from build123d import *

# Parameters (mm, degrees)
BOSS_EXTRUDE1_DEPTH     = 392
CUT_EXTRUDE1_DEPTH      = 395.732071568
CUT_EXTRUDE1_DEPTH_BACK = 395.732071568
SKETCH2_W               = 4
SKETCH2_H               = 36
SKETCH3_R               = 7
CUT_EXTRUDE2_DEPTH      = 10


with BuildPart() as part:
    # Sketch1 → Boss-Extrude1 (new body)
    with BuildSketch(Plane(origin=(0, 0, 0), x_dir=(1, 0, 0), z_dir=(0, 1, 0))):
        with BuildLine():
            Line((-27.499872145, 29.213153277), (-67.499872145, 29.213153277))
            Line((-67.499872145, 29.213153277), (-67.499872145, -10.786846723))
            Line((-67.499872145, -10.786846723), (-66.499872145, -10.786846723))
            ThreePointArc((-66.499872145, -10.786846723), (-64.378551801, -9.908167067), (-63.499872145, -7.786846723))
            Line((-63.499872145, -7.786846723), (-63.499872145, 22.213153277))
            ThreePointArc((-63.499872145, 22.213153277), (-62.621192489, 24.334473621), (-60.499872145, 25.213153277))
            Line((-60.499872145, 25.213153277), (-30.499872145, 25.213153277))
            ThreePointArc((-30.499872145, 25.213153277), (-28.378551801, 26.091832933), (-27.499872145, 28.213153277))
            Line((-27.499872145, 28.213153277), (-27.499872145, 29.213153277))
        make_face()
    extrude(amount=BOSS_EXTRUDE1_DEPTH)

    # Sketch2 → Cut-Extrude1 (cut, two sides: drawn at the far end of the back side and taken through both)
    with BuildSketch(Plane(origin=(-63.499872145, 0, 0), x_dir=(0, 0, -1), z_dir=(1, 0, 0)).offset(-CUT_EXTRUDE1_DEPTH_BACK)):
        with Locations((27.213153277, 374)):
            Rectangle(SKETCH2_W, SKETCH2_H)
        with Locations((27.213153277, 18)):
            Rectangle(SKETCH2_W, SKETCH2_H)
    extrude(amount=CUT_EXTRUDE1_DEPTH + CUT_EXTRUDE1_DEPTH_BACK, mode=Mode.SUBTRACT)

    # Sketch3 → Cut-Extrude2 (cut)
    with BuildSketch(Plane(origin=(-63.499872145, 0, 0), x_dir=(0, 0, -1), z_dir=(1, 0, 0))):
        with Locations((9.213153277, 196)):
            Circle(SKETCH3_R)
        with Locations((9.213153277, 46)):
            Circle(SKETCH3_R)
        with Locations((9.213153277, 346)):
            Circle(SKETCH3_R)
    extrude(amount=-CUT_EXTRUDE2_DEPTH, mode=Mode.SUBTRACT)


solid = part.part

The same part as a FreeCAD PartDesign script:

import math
import FreeCAD as App
import Part
import Sketcher

doc = App.newDocument("Part")
body = doc.addObject("PartDesign::Body", "Body")

sketch1 = body.newObject("Sketcher::SketchObject", "Sketch")
sketch1.AttachmentSupport = (doc.getObject("XZ_Plane"), [""])
sketch1.MapMode = "FlatFace"
sketch1.addGeometry([
    Part.LineSegment(App.Vector(-27.499872, -29.213153, 0), App.Vector(-67.499872, -29.213153, 0)),
    Part.LineSegment(App.Vector(-67.499872, -29.213153, 0), App.Vector(-67.499872, 10.786847, 0)),
    Part.LineSegment(App.Vector(-67.499872, 10.786847, 0), App.Vector(-66.499872, 10.786847, 0)),
    Part.ArcOfCircle(Part.Circle(App.Vector(-66.499872, 7.786847, 0), App.Vector(0, 0, 1), 3), math.radians(0), math.radians(90)),
    Part.LineSegment(App.Vector(-63.499872, 7.786847, 0), App.Vector(-63.499872, -22.213153, 0)),
    Part.ArcOfCircle(Part.Circle(App.Vector(-60.499872, -22.213153, 0), App.Vector(0, 0, 1), 3), math.radians(180), math.radians(270)),
    Part.LineSegment(App.Vector(-60.499872, -25.213153, 0), App.Vector(-30.499872, -25.213153, 0)),
    Part.ArcOfCircle(Part.Circle(App.Vector(-30.499872, -28.213153, 0), App.Vector(0, 0, 1), 3), math.radians(0), math.radians(90)),
    Part.LineSegment(App.Vector(-27.499872, -28.213153, 0), App.Vector(-27.499872, -29.213153, 0)),
], False)
sketch1.addConstraint([
    Sketcher.Constraint("Coincident", 0, 2, 1, 1),
    Sketcher.Constraint("Coincident", 1, 2, 2, 1),
    Sketcher.Constraint("Tangent", 2, 2, 3, 2),
    Sketcher.Constraint("Tangent", 3, 1, 4, 1),
    Sketcher.Constraint("Tangent", 4, 2, 5, 1),
    Sketcher.Constraint("Tangent", 5, 2, 6, 1),
    Sketcher.Constraint("Tangent", 6, 2, 7, 2),
    Sketcher.Constraint("Tangent", 7, 1, 8, 1),
    Sketcher.Constraint("Coincident", 8, 2, 0, 1),
    Sketcher.Constraint("Horizontal", 0),
    Sketcher.Constraint("Vertical", 1),
    Sketcher.Constraint("Horizontal", 2),
    Sketcher.Constraint("Vertical", 4),
    Sketcher.Constraint("Horizontal", 6),
    Sketcher.Constraint("Vertical", 8),
    Sketcher.Constraint("Equal", 3, 5),
    Sketcher.Constraint("Equal", 5, 7),
    Sketcher.Constraint("Equal", 0, 1),
    Sketcher.Constraint("Equal", 6, 4),
    Sketcher.Constraint("Radius", 3, 3.0),
    Sketcher.Constraint("DistanceX", 0, 2, 0, 1, 40.0),
    Sketcher.Constraint("DistanceX", 2, 1, 2, 2, 1.0),
    Sketcher.Constraint("DistanceX", 3, 3, -1, 1, 66.499872),
    Sketcher.Constraint("DistanceY", -1, 1, 3, 3, 7.786847),
])
pad1 = body.newObject("PartDesign::Pad", "Pad")
pad1.Profile = sketch1
pad1.Length = 392
pad1.Reversed = True

sketch2 = body.newObject("Sketcher::SketchObject", "Sketch001")
sketch2.AttachmentSupport = (doc.getObject("YZ_Plane"), [""])
sketch2.MapMode = "FlatFace"
sketch2.AttachmentOffset = App.Placement(App.Vector(0, 0, -63.499872), App.Rotation())
sketch2.addGeometry([
    Part.LineSegment(App.Vector(392, -25.213153, 0), App.Vector(356, -25.213153, 0)),
    Part.LineSegment(App.Vector(356, -25.213153, 0), App.Vector(356, -29.213153, 0)),
    Part.LineSegment(App.Vector(356, -29.213153, 0), App.Vector(392, -29.213153, 0)),
    Part.LineSegment(App.Vector(392, -29.213153, 0), App.Vector(392, -25.213153, 0)),
    Part.LineSegment(App.Vector(36, -25.213153, 0), App.Vector(0, -25.213153, 0)),
    Part.LineSegment(App.Vector(0, -25.213153, 0), App.Vector(0, -29.213153, 0)),
    Part.LineSegment(App.Vector(0, -29.213153, 0), App.Vector(36, -29.213153, 0)),
    Part.LineSegment(App.Vector(36, -29.213153, 0), App.Vector(36, -25.213153, 0)),
], False)
sketch2.addConstraint([
    Sketcher.Constraint("Coincident", 0, 2, 1, 1),
    Sketcher.Constraint("Coincident", 1, 2, 2, 1),
    Sketcher.Constraint("Coincident", 2, 2, 3, 1),
    Sketcher.Constraint("Coincident", 3, 2, 0, 1),
    Sketcher.Constraint("Coincident", 4, 2, 5, 1),
    Sketcher.Constraint("Coincident", 5, 2, 6, 1),
    Sketcher.Constraint("Coincident", 6, 2, 7, 1),
    Sketcher.Constraint("Coincident", 7, 2, 4, 1),
    Sketcher.Constraint("Horizontal", 0),
    Sketcher.Constraint("Vertical", 1),
    Sketcher.Constraint("Horizontal", 2),
    Sketcher.Constraint("Vertical", 3),
    Sketcher.Constraint("Horizontal", 4),
    Sketcher.Constraint("Vertical", 5),
    Sketcher.Constraint("Horizontal", 6),
    Sketcher.Constraint("Vertical", 7),
    Sketcher.Constraint("PointOnObject", 4, 2, -2),
    Sketcher.Constraint("Horizontal", 3, 2, 4, 2),
    Sketcher.Constraint("Horizontal", 2, 2, 5, 2),
    Sketcher.Constraint("Equal", 2, 4),
    Sketcher.Constraint("DistanceX", 0, 2, 0, 1, 36.0),
    Sketcher.Constraint("DistanceY", 1, 2, 1, 1, 4.0),
    Sketcher.Constraint("DistanceX", -1, 1, 0, 2, 356.0),
    Sketcher.Constraint("DistanceY", 0, 2, -1, 1, 25.213153),
])
pocket1 = body.newObject("PartDesign::Pocket", "Pocket")
pocket1.Profile = sketch2
pocket1.Type = "ThroughAll"
pocket1.Midplane = True

sketch3 = body.newObject("Sketcher::SketchObject", "Sketch002")
sketch3.AttachmentSupport = (doc.getObject("YZ_Plane"), [""])
sketch3.MapMode = "FlatFace"
sketch3.AttachmentOffset = App.Placement(App.Vector(0, 0, -63.499872), App.Rotation())
sketch3.addGeometry([
    Part.Circle(App.Vector(196, -9.213153, 0), App.Vector(0, 0, 1), 7),
    Part.Circle(App.Vector(46, -9.213153, 0), App.Vector(0, 0, 1), 7),
    Part.Circle(App.Vector(346, -9.213153, 0), App.Vector(0, 0, 1), 7),
], False)
sketch3.addConstraint([
    Sketcher.Constraint("Equal", 0, 1),
    Sketcher.Constraint("Equal", 1, 2),
    Sketcher.Constraint("Horizontal", 0, 3, 1, 3),
    Sketcher.Constraint("Horizontal", 1, 3, 2, 3),
    Sketcher.Constraint("Diameter", 0, 14.0),
    Sketcher.Constraint("DistanceX", -1, 1, 0, 3, 196.0),
    Sketcher.Constraint("DistanceX", -1, 1, 1, 3, 46.0),
    Sketcher.Constraint("DistanceX", -1, 1, 2, 3, 346.0),
    Sketcher.Constraint("DistanceY", 0, 3, -1, 1, 9.213153),
])
pocket2 = body.newObject("PartDesign::Pocket", "Pocket001")
pocket2.Profile = sketch3
pocket2.Length = 10

doc.recompute()
